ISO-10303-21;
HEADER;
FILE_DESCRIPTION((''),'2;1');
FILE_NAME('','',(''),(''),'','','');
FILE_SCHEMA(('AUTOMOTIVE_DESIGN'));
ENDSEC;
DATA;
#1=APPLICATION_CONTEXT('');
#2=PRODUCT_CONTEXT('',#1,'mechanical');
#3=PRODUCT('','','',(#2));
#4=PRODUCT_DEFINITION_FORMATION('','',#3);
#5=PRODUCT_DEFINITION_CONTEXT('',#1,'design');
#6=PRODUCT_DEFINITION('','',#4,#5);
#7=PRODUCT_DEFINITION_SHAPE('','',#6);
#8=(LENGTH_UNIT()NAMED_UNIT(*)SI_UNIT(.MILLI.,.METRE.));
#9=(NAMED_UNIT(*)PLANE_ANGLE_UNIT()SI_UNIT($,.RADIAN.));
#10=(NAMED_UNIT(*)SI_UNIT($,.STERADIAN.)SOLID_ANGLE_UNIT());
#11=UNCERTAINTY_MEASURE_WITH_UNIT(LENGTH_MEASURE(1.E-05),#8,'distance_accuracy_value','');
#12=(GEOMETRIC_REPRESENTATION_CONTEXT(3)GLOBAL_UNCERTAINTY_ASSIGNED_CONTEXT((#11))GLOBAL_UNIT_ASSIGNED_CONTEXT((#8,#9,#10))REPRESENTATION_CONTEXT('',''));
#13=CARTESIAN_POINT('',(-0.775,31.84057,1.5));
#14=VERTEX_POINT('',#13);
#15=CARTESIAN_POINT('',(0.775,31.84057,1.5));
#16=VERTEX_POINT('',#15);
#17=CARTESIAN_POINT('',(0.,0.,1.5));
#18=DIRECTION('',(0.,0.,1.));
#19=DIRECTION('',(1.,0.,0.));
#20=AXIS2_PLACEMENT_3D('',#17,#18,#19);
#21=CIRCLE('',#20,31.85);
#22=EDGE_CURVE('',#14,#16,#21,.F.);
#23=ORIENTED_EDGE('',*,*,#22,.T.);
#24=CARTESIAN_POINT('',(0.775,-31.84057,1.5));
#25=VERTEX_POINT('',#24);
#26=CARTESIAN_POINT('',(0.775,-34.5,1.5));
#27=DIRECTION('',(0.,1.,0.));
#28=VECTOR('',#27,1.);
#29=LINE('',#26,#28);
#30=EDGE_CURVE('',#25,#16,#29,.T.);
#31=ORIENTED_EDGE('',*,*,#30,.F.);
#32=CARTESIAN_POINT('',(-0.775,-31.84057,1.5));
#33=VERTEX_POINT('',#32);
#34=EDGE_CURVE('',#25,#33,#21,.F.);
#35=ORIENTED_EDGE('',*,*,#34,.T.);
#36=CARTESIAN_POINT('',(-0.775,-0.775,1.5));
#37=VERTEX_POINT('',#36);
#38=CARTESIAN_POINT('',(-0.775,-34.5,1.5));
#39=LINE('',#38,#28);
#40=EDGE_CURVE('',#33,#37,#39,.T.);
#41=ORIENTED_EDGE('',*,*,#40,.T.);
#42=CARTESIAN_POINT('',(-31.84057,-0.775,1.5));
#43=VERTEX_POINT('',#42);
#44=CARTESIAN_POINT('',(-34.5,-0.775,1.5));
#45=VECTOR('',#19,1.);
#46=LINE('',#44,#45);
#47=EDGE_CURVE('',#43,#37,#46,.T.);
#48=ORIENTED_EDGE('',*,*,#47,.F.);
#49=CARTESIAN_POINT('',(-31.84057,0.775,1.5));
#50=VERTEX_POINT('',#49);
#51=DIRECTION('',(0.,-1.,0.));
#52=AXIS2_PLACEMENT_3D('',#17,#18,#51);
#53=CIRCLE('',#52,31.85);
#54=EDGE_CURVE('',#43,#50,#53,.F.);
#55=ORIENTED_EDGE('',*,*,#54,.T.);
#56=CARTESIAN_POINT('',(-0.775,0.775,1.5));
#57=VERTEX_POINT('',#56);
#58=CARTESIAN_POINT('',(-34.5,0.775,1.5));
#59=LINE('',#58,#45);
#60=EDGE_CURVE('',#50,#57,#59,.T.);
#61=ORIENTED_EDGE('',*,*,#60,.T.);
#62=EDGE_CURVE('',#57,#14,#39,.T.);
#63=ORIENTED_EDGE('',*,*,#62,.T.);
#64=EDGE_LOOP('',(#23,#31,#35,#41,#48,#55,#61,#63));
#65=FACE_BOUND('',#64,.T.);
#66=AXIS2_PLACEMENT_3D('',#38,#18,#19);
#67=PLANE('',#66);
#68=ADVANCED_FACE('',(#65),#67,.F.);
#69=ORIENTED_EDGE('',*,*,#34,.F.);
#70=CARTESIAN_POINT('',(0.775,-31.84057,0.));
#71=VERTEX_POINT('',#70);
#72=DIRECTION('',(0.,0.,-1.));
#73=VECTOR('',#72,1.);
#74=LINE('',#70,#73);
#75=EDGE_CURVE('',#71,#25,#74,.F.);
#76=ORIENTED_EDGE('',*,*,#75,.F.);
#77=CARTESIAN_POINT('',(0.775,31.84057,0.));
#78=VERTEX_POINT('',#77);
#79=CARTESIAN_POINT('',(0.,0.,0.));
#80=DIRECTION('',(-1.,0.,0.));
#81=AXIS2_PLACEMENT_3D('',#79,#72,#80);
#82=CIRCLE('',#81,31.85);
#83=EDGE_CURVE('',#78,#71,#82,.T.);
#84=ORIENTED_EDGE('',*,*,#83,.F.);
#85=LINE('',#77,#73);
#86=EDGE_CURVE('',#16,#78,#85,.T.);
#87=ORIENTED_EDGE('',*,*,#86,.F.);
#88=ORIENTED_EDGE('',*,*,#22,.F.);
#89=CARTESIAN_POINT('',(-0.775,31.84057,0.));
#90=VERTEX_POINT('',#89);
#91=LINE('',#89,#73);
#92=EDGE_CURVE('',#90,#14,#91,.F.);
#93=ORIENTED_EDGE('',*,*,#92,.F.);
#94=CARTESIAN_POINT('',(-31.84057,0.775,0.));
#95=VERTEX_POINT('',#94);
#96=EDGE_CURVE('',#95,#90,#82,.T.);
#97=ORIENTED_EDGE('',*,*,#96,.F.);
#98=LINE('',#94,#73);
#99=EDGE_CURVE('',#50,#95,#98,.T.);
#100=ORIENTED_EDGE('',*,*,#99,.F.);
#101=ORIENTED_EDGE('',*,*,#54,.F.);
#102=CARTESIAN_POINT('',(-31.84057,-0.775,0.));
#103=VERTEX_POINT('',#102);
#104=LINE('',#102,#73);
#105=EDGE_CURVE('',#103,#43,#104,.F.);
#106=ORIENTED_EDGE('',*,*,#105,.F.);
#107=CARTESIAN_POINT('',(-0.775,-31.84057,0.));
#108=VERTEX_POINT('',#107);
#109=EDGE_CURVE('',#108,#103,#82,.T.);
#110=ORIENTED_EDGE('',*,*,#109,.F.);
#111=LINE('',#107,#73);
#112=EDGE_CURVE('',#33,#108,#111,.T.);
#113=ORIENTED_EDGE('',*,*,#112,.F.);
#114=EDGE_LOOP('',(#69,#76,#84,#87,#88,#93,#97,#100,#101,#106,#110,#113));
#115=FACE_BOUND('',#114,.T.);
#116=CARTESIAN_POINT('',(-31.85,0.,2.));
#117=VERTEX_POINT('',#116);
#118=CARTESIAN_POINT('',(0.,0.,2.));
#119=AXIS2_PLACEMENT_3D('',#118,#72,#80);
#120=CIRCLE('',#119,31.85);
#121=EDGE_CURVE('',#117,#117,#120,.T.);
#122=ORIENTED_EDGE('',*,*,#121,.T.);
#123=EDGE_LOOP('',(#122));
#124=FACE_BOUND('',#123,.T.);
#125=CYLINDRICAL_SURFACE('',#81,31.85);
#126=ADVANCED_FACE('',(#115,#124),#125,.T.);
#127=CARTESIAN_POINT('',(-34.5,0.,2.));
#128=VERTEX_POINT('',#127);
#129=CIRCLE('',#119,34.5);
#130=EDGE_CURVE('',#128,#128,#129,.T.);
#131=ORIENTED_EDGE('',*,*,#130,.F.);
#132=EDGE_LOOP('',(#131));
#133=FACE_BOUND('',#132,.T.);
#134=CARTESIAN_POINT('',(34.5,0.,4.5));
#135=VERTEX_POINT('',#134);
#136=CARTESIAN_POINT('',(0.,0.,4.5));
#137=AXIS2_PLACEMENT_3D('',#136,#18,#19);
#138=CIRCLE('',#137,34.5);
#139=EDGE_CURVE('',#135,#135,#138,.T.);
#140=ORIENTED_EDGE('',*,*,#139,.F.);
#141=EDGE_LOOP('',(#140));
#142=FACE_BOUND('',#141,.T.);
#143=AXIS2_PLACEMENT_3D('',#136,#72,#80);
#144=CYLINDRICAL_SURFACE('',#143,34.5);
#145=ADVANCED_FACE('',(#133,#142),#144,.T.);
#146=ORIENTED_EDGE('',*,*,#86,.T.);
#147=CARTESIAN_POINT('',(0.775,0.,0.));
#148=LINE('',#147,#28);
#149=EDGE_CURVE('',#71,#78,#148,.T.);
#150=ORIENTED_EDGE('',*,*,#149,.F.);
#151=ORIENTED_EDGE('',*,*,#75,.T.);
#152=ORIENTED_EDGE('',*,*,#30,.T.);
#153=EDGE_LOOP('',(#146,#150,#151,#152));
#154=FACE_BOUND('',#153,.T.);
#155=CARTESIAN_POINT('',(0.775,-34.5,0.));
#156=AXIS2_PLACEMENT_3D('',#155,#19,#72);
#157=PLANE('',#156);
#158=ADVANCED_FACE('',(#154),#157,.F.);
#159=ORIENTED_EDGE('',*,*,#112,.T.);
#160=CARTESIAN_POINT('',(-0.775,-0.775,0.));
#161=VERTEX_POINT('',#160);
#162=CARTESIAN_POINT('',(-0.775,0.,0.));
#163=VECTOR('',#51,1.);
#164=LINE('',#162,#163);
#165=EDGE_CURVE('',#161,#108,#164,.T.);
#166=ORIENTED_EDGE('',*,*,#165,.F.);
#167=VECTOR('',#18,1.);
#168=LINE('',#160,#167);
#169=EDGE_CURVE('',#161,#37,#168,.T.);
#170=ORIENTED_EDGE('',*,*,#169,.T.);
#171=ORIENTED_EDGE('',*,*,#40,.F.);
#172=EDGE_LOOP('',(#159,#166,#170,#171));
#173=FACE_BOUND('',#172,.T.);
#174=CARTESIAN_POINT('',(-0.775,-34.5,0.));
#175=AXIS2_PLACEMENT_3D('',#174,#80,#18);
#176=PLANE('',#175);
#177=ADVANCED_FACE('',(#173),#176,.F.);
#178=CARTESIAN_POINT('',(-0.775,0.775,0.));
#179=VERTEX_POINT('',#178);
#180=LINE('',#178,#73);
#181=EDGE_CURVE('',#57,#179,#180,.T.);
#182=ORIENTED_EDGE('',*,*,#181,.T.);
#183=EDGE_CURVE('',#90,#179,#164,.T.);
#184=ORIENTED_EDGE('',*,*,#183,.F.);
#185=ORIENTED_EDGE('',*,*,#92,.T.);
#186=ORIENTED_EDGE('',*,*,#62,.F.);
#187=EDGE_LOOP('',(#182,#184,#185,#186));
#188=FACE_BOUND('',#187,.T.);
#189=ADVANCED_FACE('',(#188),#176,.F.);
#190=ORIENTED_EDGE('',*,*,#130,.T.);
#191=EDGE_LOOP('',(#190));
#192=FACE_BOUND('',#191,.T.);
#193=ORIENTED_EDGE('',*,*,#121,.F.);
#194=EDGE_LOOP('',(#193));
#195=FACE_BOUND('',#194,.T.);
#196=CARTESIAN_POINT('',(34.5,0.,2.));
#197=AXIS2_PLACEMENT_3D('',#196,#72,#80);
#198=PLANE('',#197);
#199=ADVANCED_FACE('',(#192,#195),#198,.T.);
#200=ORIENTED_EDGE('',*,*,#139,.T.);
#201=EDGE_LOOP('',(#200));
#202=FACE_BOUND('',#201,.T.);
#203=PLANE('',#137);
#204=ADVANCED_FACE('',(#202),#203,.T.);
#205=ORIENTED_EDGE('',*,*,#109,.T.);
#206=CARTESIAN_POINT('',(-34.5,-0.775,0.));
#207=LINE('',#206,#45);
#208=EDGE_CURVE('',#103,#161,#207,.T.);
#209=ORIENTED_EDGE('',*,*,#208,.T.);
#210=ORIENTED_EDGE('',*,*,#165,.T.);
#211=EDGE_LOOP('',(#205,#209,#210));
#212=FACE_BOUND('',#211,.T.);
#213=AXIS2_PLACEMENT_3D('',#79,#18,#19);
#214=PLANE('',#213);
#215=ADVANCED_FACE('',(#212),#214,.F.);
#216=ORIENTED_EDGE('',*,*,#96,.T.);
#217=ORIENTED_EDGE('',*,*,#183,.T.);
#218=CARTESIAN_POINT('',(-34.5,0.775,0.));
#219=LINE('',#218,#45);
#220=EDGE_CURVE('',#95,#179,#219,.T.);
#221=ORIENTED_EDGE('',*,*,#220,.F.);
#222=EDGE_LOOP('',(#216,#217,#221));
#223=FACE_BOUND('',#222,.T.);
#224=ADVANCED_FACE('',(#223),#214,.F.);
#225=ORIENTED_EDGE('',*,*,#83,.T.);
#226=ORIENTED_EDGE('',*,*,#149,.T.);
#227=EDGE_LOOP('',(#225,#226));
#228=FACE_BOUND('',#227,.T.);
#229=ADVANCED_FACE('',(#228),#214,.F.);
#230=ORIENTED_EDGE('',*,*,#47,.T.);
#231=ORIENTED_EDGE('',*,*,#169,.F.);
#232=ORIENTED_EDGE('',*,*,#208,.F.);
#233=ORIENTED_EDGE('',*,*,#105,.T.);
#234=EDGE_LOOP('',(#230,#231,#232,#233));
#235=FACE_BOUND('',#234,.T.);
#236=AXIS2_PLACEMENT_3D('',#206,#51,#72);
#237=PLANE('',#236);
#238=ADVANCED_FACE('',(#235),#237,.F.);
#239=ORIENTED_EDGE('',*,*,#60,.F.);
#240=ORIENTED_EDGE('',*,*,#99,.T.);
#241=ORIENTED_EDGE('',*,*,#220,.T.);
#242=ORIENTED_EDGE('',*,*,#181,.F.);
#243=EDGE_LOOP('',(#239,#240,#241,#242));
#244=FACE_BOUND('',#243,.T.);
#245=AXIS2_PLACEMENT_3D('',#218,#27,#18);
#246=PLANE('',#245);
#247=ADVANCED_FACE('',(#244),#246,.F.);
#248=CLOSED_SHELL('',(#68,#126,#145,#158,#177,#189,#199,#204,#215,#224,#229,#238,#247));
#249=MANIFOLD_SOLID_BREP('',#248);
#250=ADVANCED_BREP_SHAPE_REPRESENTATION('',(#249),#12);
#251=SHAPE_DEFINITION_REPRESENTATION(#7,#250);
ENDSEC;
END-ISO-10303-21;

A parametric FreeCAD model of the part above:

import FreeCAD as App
import Part
import Sketcher

doc = App.newDocument("Part")
params = doc.addObject("Spreadsheet::Sheet", "Params")
for row, (alias, value) in enumerate([
    ("sketch1_diameter", "69 mm"),
    ("pad1_length", "4.5 mm"),
    ("sketch2_height", "2 mm"),
    ("sketch2_width", "2.65 mm"),
    ("groove_angle", "360 deg"),
    ("sketch3_height", "1.5 mm"),
    ("sketch3_width", "1.55 mm"),
    ("sketch4_height", "1.5 mm"),
    ("sketch4_width", "1.55 mm"),
], start=1):
    params.set(f"A{row}", alias)
    params.set(f"B{row}", "=" + value)
    params.setAlias(f"B{row}", alias)

body = doc.addObject("PartDesign::Body", "Body")

# Sketch on XY plane
sketch1 = body.newObject("Sketcher::SketchObject", "Sketch")
sketch1.AttachmentSupport = (doc.getObject("XY_Plane"), [""])
sketch1.MapMode = "FlatFace"
sketch1.addGeometry(Part.Circle(App.Vector(0, 0, 0), App.Vector(0, 0, 1), 34), False)
sketch1.addConstraint([
    Sketcher.Constraint("Coincident", 0, 3, -1, 1),
    Sketcher.Constraint("Diameter", 0, 69.0),
])
sketch1.setExpression("Constraints[1]", "Params.sketch1_diameter")
pad1 = body.newObject("PartDesign::Pad", "Pad")
pad1.Profile = sketch1
pad1.setExpression("Length", "Params.pad1_length")

# Sketch on XZ plane
sketch2 = body.newObject("Sketcher::SketchObject", "Sketch001")
sketch2.AttachmentSupport = (doc.getObject("XZ_Plane"), [""])
sketch2.MapMode = "FlatFace"
sketch2.addGeometry([
    Part.LineSegment(App.Vector(31.9, 0, 0), App.Vector(31.9, 2, 0)),
    Part.LineSegment(App.Vector(31.9, 2, 0), App.Vector(34.5, 2, 0)),
    Part.LineSegment(App.Vector(34.5, 2, 0), App.Vector(34.5, 0, 0)),
    Part.LineSegment(App.Vector(34.5, 0, 0), App.Vector(31.9, 0, 0)),
], False)
sketch2.addConstraint([
    Sketcher.Constraint("Coincident", 0, 2, 1, 1),
    Sketcher.Constraint("Coincident", 1, 2, 2, 1),
    Sketcher.Constraint("Coincident", 2, 2, 3, 1),
    Sketcher.Constraint("Coincident", 3, 2, 0, 1),
    Sketcher.Constraint("Vertical", 0),
    Sketcher.Constraint("Horizontal", 1),
    Sketcher.Constraint("Vertical", 2),
    Sketcher.Constraint("Horizontal", 3),
    Sketcher.Constraint("PointOnObject", 2, 2, -1),
    Sketcher.Constraint("DistanceY", 0, 1, 0, 2, 2.0),
    Sketcher.Constraint("DistanceX", 1, 1, 1, 2, 2.65),
    Sketcher.Constraint("DistanceX", -1, 1, 1, 2, 34.5),
])
sketch2.setExpression("Constraints[9]", "Params.sketch2_height")
sketch2.setExpression("Constraints[10]", "Params.sketch2_width")
groove = body.newObject("PartDesign::Groove", "Groove")
groove.Profile = sketch2
groove.ReferenceAxis = (sketch2, ["V_Axis"])
groove.setExpression("Angle", "Params.groove_angle")

# Sketch on XZ plane
sketch3 = body.newObject("Sketcher::SketchObject", "Sketch002")
sketch3.AttachmentSupport = (doc.getObject("XZ_Plane"), [""])
sketch3.MapMode = "FlatFace"
sketch3.addGeometry([
    Part.LineSegment(App.Vector(-0.8, 0, 0), App.Vector(-0.8, 1.5, 0)),
    Part.LineSegment(App.Vector(-0.8, 1.5, 0), App.Vector(0.8, 1.5, 0)),
    Part.LineSegment(App.Vector(0.8, 1.5, 0), App.Vector(0.8, 0, 0)),
    Part.LineSegment(App.Vector(0.8, 0, 0), App.Vector(-0.8, 0, 0)),
], False)
sketch3.addConstraint([
    Sketcher.Constraint("Coincident", 0, 2, 1, 1),
    Sketcher.Constraint("Coincident", 1, 2, 2, 1),
    Sketcher.Constraint("Coincident", 2, 2, 3, 1),
    Sketcher.Constraint("Coincident", 3, 2, 0, 1),
    Sketcher.Constraint("Vertical", 0),
    Sketcher.Constraint("Horizontal", 1),
    Sketcher.Constraint("Vertical", 2),
    Sketcher.Constraint("Horizontal", 3),
    Sketcher.Constraint("Symmetric", 2, 2, 3, 2, -1, 1),
    Sketcher.Constraint("DistanceY", 0, 1, 0, 2, 1.5),
    Sketcher.Constraint("DistanceX", 1, 1, 1, 2, 1.55),
])
sketch3.setExpression("Constraints[9]", "Params.sketch3_height")
sketch3.setExpression("Constraints[10]", "Params.sketch3_width")
pocket1 = body.newObject("PartDesign::Pocket", "Pocket")
pocket1.Profile = sketch3
pocket1.Type = "ThroughAll"
pocket1.Midplane = True

# Sketch on YZ plane
sketch4 = body.newObject("Sketcher::SketchObject", "Sketch003")
sketch4.AttachmentSupport = (doc.getObject("YZ_Plane"), [""])
sketch4.MapMode = "FlatFace"
sketch4.addGeometry([
    Part.LineSegment(App.Vector(0.8, 1.5, 0), App.Vector(-0.8, 1.5, 0)),
    Part.LineSegment(App.Vector(-0.8, 1.5, 0), App.Vector(-0.8, 0, 0)),
    Part.LineSegment(App.Vector(-0.8, 0, 0), App.Vector(0.8, 0, 0)),
    Part.LineSegment(App.Vector(0.8, 0, 0), App.Vector(0.8, 1.5, 0)),
], False)
sketch4.addConstraint([
    Sketcher.Constraint("Coincident", 0, 2, 1, 1),
    Sketcher.Constraint("Coincident", 1, 2, 2, 1),
    Sketcher.Constraint("Coincident", 2, 2, 3, 1),
    Sketcher.Constraint("Coincident", 3, 2, 0, 1),
    Sketcher.Constraint("Horizontal", 0),
    Sketcher.Constraint("Vertical", 1),
    Sketcher.Constraint("Horizontal", 2),
    Sketcher.Constraint("Vertical", 3),
    Sketcher.Constraint("Symmetric", 1, 2, 2, 2, -1, 1),
    Sketcher.Constraint("DistanceY", 1, 2, 1, 1, 1.5),
    Sketcher.Constraint("DistanceX", 0, 2, 0, 1, 1.55),
])
sketch4.setExpression("Constraints[9]", "Params.sketch4_height")
sketch4.setExpression("Constraints[10]", "Params.sketch4_width")
pocket2 = body.newObject("PartDesign::Pocket", "Pocket001")
pocket2.Profile = sketch4
pocket2.Type = "ThroughAll"

doc.recompute()
